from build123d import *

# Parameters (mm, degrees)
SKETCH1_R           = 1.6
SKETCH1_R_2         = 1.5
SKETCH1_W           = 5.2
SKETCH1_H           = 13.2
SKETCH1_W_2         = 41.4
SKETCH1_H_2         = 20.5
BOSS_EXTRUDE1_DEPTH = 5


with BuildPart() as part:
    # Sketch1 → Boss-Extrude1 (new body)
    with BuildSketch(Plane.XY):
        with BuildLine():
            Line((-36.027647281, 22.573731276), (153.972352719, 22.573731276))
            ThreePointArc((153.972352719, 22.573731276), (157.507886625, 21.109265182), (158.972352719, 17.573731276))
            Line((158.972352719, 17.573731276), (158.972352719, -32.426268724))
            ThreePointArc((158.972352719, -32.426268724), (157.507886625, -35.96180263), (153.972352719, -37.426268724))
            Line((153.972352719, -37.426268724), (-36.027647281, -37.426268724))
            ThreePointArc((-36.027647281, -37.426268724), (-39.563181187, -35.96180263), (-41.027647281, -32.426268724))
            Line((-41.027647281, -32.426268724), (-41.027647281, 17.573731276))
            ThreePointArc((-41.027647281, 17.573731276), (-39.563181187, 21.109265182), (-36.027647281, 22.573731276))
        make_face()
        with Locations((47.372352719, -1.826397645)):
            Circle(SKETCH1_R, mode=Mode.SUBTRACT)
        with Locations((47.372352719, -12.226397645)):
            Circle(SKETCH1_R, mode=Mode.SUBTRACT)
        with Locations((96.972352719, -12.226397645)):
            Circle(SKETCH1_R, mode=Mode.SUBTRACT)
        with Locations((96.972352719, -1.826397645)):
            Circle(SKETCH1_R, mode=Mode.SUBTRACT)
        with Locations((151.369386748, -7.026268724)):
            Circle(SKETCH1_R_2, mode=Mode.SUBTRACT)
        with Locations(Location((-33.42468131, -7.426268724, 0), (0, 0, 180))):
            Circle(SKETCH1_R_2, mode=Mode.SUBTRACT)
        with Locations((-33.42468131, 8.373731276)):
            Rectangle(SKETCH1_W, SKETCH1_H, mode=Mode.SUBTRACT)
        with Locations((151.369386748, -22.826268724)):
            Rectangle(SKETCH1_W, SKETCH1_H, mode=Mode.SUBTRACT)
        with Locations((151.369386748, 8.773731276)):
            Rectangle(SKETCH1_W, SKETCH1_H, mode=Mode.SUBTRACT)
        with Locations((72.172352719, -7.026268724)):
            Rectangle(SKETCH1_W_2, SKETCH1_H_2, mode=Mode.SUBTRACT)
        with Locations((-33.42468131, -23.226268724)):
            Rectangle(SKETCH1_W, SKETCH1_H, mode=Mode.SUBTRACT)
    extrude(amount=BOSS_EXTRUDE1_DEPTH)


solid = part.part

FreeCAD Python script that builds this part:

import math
import FreeCAD as App
import Part
import Sketcher
from FreeCAD import Vector
Q = App.Units.Quantity

doc = App.newDocument("Part")
params = doc.addObject("Spreadsheet::Sheet", "Params")
for row, (alias, value) in enumerate([
    ("sketch1_diameter", "3 mm"),
    ("sketch1_radius", "5 mm"),
    ("sketch1_diameter2", "3.2 mm"),
    ("sketch1_width", "190 mm"),
    ("sketch1_height", "50 mm"),
    ("pad1_length", "5 mm"),
], start=1):
    params.set(f"A{row}", alias)
    params.set(f"B{row}", "=" + value)
    params.setAlias(f"B{row}", alias)

body = doc.addObject("PartDesign::Body", "Body")

# Sketch on XY plane
sketch1 = doc.addObject("Sketcher::SketchObject", "Sketch")
body.addObject(sketch1)
sketch1.AttachmentSupport = (doc.XY_Plane, [""])
sketch1.MapMode = "FlatFace"
sketch1.addGeometry([
    Part.LineSegment(Vector(153.972353, 22.573731, 0), Vector(-36.027647, 22.573731, 0)),  # 0
    Part.ArcOfCircle(Part.Circle(Vector(-36.027647, 17.573731, 0), Vector(0, 0, 1), 5), math.radians(90), math.radians(180)),  # 1
    Part.LineSegment(Vector(-41.027647, 17.573731, 0), Vector(-41.027647, -32.426269, 0)),  # 2
    Part.ArcOfCircle(Part.Circle(Vector(-36.027647, -32.426269, 0), Vector(0, 0, 1), 5), math.radians(180), math.radians(270)),  # 3
    Part.LineSegment(Vector(-36.027647, -37.426269, 0), Vector(153.972353, -37.426269, 0)),  # 4
    Part.ArcOfCircle(Part.Circle(Vector(153.972353, -32.426269, 0), Vector(0, 0, 1), 5), math.radians(-90), math.radians(0)),  # 5
    Part.LineSegment(Vector(158.972353, -32.426269, 0), Vector(158.972353, 17.573731, 0)),  # 6
    Part.ArcOfCircle(Part.Circle(Vector(153.972353, 17.573731, 0), Vector(0, 0, 1), 5), math.radians(0), math.radians(90)),  # 7
    Part.LineSegment(Vector(148.769387, -29.426269, 0), Vector(148.769387, -16.226269, 0)),  # 8
    Part.LineSegment(Vector(148.769387, -16.226269, 0), Vector(153.969387, -16.226269, 0)),  # 9
    Part.LineSegment(Vector(153.969387, -16.226269, 0), Vector(153.969387, -29.426269, 0)),  # 10
    Part.LineSegment(Vector(153.969387, -29.426269, 0), Vector(148.769387, -29.426269, 0)),  # 11
    Part.Circle(Vector(96.972353, -12.226398, 0), Vector(0, 0, 1), 1.6),  # 12
    Part.LineSegment(Vector(-36.024681, -29.826269, 0), Vector(-36.024681, -16.626269, 0)),  # 13
    Part.LineSegment(Vector(-36.024681, -16.626269, 0), Vector(-30.824681, -16.626269, 0)),  # 14
    Part.LineSegment(Vector(-30.824681, -16.626269, 0), Vector(-30.824681, -29.826269, 0)),  # 15
    Part.LineSegment(Vector(-30.824681, -29.826269, 0), Vector(-36.024681, -29.826269, 0)),  # 16
    Part.Circle(Vector(47.372353, -12.226398, 0), Vector(0, 0, 1), 1.6),  # 17
    Part.Circle(Vector(-33.424681, -7.426269, 0), Vector(0, 0, 1), 1.5),  # 18
    Part.Circle(Vector(151.369387, -7.026269, 0), Vector(0, 0, 1), 1.5),  # 19
    Part.Circle(Vector(96.972353, -1.826398, 0), Vector(0, 0, 1), 1.6),  # 20
    Part.LineSegment(Vector(51.472353, -17.276269, 0), Vector(51.472353, 3.223731, 0)),  # 21
    Part.LineSegment(Vector(51.472353, 3.223731, 0), Vector(92.872353, 3.223731, 0)),  # 22
    Part.LineSegment(Vector(92.872353, 3.223731, 0), Vector(92.872353, -17.276269, 0)),  # 23
    Part.LineSegment(Vector(92.872353, -17.276269, 0), Vector(51.472353, -17.276269, 0)),  # 24
    Part.LineSegment(Vector(148.769387, 2.173731, 0), Vector(148.769387, 15.373731, 0)),  # 25
    Part.LineSegment(Vector(148.769387, 15.373731, 0), Vector(153.969387, 15.373731, 0)),  # 26
    Part.LineSegment(Vector(153.969387, 15.373731, 0), Vector(153.969387, 2.173731, 0)),  # 27
    Part.LineSegment(Vector(153.969387, 2.173731, 0), Vector(148.769387, 2.173731, 0)),  # 28
    Part.Circle(Vector(47.372353, -1.826398, 0), Vector(0, 0, 1), 1.6),  # 29
    Part.LineSegment(Vector(-36.024681, 1.773731, 0), Vector(-36.024681, 14.973731, 0)),  # 30
    Part.LineSegment(Vector(-36.024681, 14.973731, 0), Vector(-30.824681, 14.973731, 0)),  # 31
    Part.LineSegment(Vector(-30.824681, 14.973731, 0), Vector(-30.824681, 1.773731, 0)),  # 32
    Part.LineSegment(Vector(-30.824681, 1.773731, 0), Vector(-36.024681, 1.773731, 0)),  # 33
], False)
sketch1.addConstraint([
    Sketcher.Constraint("Tangent", 0, 2, 1, 1),
    Sketcher.Constraint("Tangent", 1, 2, 2, 1),
    Sketcher.Constraint("Tangent", 2, 2, 3, 1),
    Sketcher.Constraint("Tangent", 3, 2, 4, 1),
    Sketcher.Constraint("Tangent", 4, 2, 5, 1),
    Sketcher.Constraint("Tangent", 5, 2, 6, 1),
    Sketcher.Constraint("Tangent", 6, 2, 7, 1),
    Sketcher.Constraint("Tangent", 7, 2, 0, 1),
    Sketcher.Constraint("Coincident", 8, 2, 9, 1),
    Sketcher.Constraint("Coincident", 9, 2, 10, 1),
    Sketcher.Constraint("Coincident", 10, 2, 11, 1),
    Sketcher.Constraint("Coincident", 11, 2, 8, 1),
    Sketcher.Constraint("Coincident", 13, 2, 14, 1),
    Sketcher.Constraint("Coincident", 14, 2, 15, 1),
    Sketcher.Constraint("Coincident", 15, 2, 16, 1),
    Sketcher.Constraint("Coincident", 16, 2, 13, 1),
    Sketcher.Constraint("Coincident", 21, 2, 22, 1),
    Sketcher.Constraint("Coincident", 22, 2, 23, 1),
    Sketcher.Constraint("Coincident", 23, 2, 24, 1),
    Sketcher.Constraint("Coincident", 24, 2, 21, 1),
    Sketcher.Constraint("Coincident", 25, 2, 26, 1),
    Sketcher.Constraint("Coincident", 26, 2, 27, 1),
    Sketcher.Constraint("Coincident", 27, 2, 28, 1),
    Sketcher.Constraint("Coincident", 28, 2, 25, 1),
    Sketcher.Constraint("Coincident", 30, 2, 31, 1),
    Sketcher.Constraint("Coincident", 31, 2, 32, 1),
    Sketcher.Constraint("Coincident", 32, 2, 33, 1),
    Sketcher.Constraint("Coincident", 33, 2, 30, 1),
    Sketcher.Constraint("Horizontal", 0),
    Sketcher.Constraint("Vertical", 2),
    Sketcher.Constraint("Horizontal", 4),
    Sketcher.Constraint("Vertical", 6),
    Sketcher.Constraint("Vertical", 8),
    Sketcher.Constraint("Horizontal", 9),
    Sketcher.Constraint("Vertical", 10),
    Sketcher.Constraint("Horizontal", 11),
    Sketcher.Constraint("Vertical", 13),
    Sketcher.Constraint("Horizontal", 14),
    Sketcher.Constraint("Vertical", 15),
    Sketcher.Constraint("Horizontal", 16),
    Sketcher.Constraint("Vertical", 21),
    Sketcher.Constraint("Horizontal", 22),
    Sketcher.Constraint("Vertical", 23),
    Sketcher.Constraint("Horizontal", 24),
    Sketcher.Constraint("Vertical", 25),
    Sketcher.Constraint("Horizontal", 26),
    Sketcher.Constraint("Vertical", 27),
    Sketcher.Constraint("Horizontal", 28),
    Sketcher.Constraint("Vertical", 30),
    Sketcher.Constraint("Horizontal", 31),
    Sketcher.Constraint("Vertical", 32),
    Sketcher.Constraint("Horizontal", 33),
    Sketcher.Constraint("Equal", 1, 3),
    Sketcher.Constraint("Equal", 3, 5),
    Sketcher.Constraint("Equal", 5, 7),
    Sketcher.Constraint("Equal", 12, 17),
    Sketcher.Constraint("Equal", 18, 19),
    Sketcher.Constraint("Equal", 17, 20),
    Sketcher.Constraint("Equal", 20, 29),
    Sketcher.Constraint("Horizontal", 12, 3, 17, 3),
    Sketcher.Constraint("Horizontal", 20, 3, 29, 3),
    Sketcher.Constraint("Vertical", 12, 3, 20, 3),
    Sketcher.Constraint("Vertical", 17, 3, 29, 3),
    Sketcher.Constraint("Vertical", 11, 2, 25, 2),
    Sketcher.Constraint("Vertical", 10, 2, 26, 2),
    Sketcher.Constraint("Vertical", 16, 2, 30, 2),
    Sketcher.Constraint("Vertical", 15, 2, 31, 2),
    Sketcher.Constraint("Equal", 11, 14),
    Sketcher.Constraint("Equal", 10, 13),
    Sketcher.Constraint("Equal", 15, 25),
    Sketcher.Constraint("Equal", 27, 30),
    Sketcher.Constraint("Diameter", 18, Q("3 mm")),
    Sketcher.Constraint("Radius", 1, Q("5 mm")),
    Sketcher.Constraint("Diameter", 12, Q("3.2 mm")),
    Sketcher.Constraint("DistanceX", 0, 2, 0, 1, Q("190 mm")),
    Sketcher.Constraint("DistanceY", 2, 2, 2, 1, Q("50 mm")),
    Sketcher.Constraint("DistanceX", 9, 1, 9, 2, Q("5.2 mm")),
    Sketcher.Constraint("DistanceX", 22, 1, 22, 2, Q("41.4 mm")),
    Sketcher.Constraint("DistanceY", 8, 1, 8, 2, Q("13.2 mm")),
    Sketcher.Constraint("DistanceY", 21, 1, 21, 2, Q("20.5 mm")),
    Sketcher.Constraint("DistanceX", 12, 3, 5, 3, Q("57 mm")),
    Sketcher.Constraint("DistanceY", 18, 3, 1, 3, Q("25 mm")),
    Sketcher.Constraint("DistanceY", 5, 3, 10, 2, Q("3 mm")),
    Sketcher.Constraint("DistanceX", 17, 3, 12, 3, Q("49.6 mm")),
    Sketcher.Constraint("DistanceY", 19, 3, 7, 3, Q("24.6 mm")),
    Sketcher.Constraint("DistanceY", 12, 3, 20, 3, Q("10.4 mm")),
    Sketcher.Constraint("DistanceX", 8, 2, 19, 3, Q("2.6 mm")),
    Sketcher.Constraint("DistanceX", 13, 2, 18, 3, Q("2.6 mm")),
    Sketcher.Constraint("DistanceY", 13, 2, 18, 3, Q("9.2 mm")),
    Sketcher.Constraint("DistanceX", 29, 3, 21, 2, Q("4.1 mm")),
    Sketcher.Constraint("DistanceY", 25, 2, 7, 3, Q("2.2 mm")),
    Sketcher.Constraint("DistanceY", 30, 2, 1, 3, Q("2.6 mm")),
    Sketcher.Constraint("DistanceY", 14, 2, 21, 2, Q("19.85 mm")),
    Sketcher.Constraint("DistanceY", -1, 1, 1, 3, Q("17.573731 mm")),
    Sketcher.Constraint("DistanceX", 18, 3, -1, 1, Q("33.424681 mm")),
    Sketcher.Constraint("DistanceY", 5, 3, 12, 3, Q("20.199871 mm")),
    Sketcher.Constraint("DistanceX", 18, 3, 19, 3, Q("184.794068 mm")),
    Sketcher.Constraint("DistanceX", 1, 3, -1, 1, Q("36.027647 mm")),
])
sketch1.setExpression("Constraints[71]", "Params.sketch1_diameter")
sketch1.setExpression("Constraints[72]", "Params.sketch1_radius")
sketch1.setExpression("Constraints[73]", "Params.sketch1_diameter2")
sketch1.setExpression("Constraints[74]", "Params.sketch1_width")
sketch1.setExpression("Constraints[75]", "Params.sketch1_height")
pad1 = doc.addObject("PartDesign::Pad", "Pad")
body.addObject(pad1)
pad1.Profile = sketch1
pad1.setExpression("Length", "Params.pad1_length")

doc.recompute()
